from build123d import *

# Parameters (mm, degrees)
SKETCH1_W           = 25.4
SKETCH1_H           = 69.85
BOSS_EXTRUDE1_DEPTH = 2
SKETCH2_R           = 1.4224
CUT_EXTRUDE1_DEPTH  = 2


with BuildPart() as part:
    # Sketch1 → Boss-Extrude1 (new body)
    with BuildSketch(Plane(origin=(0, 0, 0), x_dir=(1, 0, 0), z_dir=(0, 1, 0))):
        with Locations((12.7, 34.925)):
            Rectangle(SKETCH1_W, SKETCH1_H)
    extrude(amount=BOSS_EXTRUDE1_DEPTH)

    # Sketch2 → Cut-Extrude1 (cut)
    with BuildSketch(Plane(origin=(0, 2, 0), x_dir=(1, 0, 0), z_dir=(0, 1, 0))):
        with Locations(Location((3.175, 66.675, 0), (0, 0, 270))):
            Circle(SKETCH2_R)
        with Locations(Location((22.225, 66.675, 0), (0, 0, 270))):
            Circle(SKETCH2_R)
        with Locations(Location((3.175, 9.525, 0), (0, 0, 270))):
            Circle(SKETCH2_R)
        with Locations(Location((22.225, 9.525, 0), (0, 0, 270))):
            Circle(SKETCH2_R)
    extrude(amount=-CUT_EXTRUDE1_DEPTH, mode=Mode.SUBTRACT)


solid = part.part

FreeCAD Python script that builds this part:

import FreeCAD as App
import Part
import Sketcher
Q = App.Units.Quantity


def add_polygon(sketch, points):
    """Adds a closed chain of lines whose ends are joined by coincident constraints."""
    first, n = sketch.GeometryCount, len(points)
    for a, b in zip(points, points[1:] + points[:1]):
        sketch.addGeometry(Part.LineSegment(App.Vector(*a, 0), App.Vector(*b, 0)), False)
    for i in range(n):
        sketch.addConstraint(Sketcher.Constraint("Coincident", first + i, 2, first + (i + 1) % n, 1))

doc = App.newDocument("Part")
body = doc.addObject("PartDesign::Body", "Body")

# Sketch on XZ plane
sketch1 = doc.addObject("Sketcher::SketchObject", "Sketch")
body.addObject(sketch1)
sketch1.AttachmentSupport = (doc.XZ_Plane, [""])
sketch1.MapMode = "FlatFace"
add_polygon(sketch1, [(0, -69.85), (0, 0), (25.4, 0), (25.4, -69.85)])  # lines 0-3
sketch1.addConstraint(Sketcher.Constraint("Vertical", 0))
sketch1.addConstraint(Sketcher.Constraint("Horizontal", 1))
sketch1.addConstraint(Sketcher.Constraint("Vertical", 2))
sketch1.addConstraint(Sketcher.Constraint("Horizontal", 3))
sketch1.addConstraint(Sketcher.Constraint("Coincident", 0, 2, -1, 1))
sketch1.addConstraint(Sketcher.Constraint("DistanceX", 1, 1, 1, 2, Q("1 in")))
sketch1.addConstraint(Sketcher.Constraint("DistanceY", 0, 1, 0, 2, Q("2.75 in")))
pad1 = doc.addObject("PartDesign::Pad", "Pad")
body.addObject(pad1)
pad1.Profile = sketch1
pad1.Length = 2
pad1.Reversed = True

# Sketch on XZ plane
sketch2 = doc.addObject("Sketcher::SketchObject", "Sketch001")
body.addObject(sketch2)
sketch2.AttachmentSupport = (doc.XZ_Plane, [""])
sketch2.MapMode = "FlatFace"
sketch2.AttachmentOffset = App.Placement(App.Vector(0, 0, -2), App.Rotation())
sketch2.addGeometry(Part.Circle(App.Vector(3.175, -66.675, 0), App.Vector(0, 0, 1), 1.4224), False)
sketch2.addGeometry(Part.Circle(App.Vector(22.225, -66.675, 0), App.Vector(0, 0, 1), 1.4224), False)
sketch2.addGeometry(Part.Circle(App.Vector(3.175, -9.525, 0), App.Vector(0, 0, 1), 1.4224), False)
sketch2.addGeometry(Part.Circle(App.Vector(22.225, -9.525, 0), App.Vector(0, 0, 1), 1.4224), False)
sketch2.addConstraint(Sketcher.Constraint("Equal", 0, 1))
sketch2.addConstraint(Sketcher.Constraint("Equal", 1, 2))
sketch2.addConstraint(Sketcher.Constraint("Equal", 2, 3))
sketch2.addConstraint(Sketcher.Constraint("Horizontal", 0, 3, 1, 3))
sketch2.addConstraint(Sketcher.Constraint("Horizontal", 2, 3, 3, 3))
sketch2.addConstraint(Sketcher.Constraint("Vertical", 0, 3, 2, 3))
sketch2.addConstraint(Sketcher.Constraint("Vertical", 1, 3, 3, 3))
sketch2.addConstraint(Sketcher.Constraint("Diameter", 0, Q("0.112 in")))
sketch2.addConstraint(Sketcher.Constraint("DistanceX", 0, 3, 1, 3, Q("0.75 in")))
sketch2.addConstraint(Sketcher.Constraint("DistanceY", 0, 3, 2, 3, Q("2.25 in")))
sketch2.addConstraint(Sketcher.Constraint("DistanceX", -1, 1, 0, 3, Q("0.125 in")))
sketch2.addConstraint(Sketcher.Constraint("DistanceY", 0, 3, -1, 1, Q("2.625 in")))
pocket1 = doc.addObject("PartDesign::Pocket", "Pocket")
body.addObject(pocket1)
pocket1.Profile = sketch2
pocket1.Length = 2
pocket1.Reversed = True

doc.recompute()
